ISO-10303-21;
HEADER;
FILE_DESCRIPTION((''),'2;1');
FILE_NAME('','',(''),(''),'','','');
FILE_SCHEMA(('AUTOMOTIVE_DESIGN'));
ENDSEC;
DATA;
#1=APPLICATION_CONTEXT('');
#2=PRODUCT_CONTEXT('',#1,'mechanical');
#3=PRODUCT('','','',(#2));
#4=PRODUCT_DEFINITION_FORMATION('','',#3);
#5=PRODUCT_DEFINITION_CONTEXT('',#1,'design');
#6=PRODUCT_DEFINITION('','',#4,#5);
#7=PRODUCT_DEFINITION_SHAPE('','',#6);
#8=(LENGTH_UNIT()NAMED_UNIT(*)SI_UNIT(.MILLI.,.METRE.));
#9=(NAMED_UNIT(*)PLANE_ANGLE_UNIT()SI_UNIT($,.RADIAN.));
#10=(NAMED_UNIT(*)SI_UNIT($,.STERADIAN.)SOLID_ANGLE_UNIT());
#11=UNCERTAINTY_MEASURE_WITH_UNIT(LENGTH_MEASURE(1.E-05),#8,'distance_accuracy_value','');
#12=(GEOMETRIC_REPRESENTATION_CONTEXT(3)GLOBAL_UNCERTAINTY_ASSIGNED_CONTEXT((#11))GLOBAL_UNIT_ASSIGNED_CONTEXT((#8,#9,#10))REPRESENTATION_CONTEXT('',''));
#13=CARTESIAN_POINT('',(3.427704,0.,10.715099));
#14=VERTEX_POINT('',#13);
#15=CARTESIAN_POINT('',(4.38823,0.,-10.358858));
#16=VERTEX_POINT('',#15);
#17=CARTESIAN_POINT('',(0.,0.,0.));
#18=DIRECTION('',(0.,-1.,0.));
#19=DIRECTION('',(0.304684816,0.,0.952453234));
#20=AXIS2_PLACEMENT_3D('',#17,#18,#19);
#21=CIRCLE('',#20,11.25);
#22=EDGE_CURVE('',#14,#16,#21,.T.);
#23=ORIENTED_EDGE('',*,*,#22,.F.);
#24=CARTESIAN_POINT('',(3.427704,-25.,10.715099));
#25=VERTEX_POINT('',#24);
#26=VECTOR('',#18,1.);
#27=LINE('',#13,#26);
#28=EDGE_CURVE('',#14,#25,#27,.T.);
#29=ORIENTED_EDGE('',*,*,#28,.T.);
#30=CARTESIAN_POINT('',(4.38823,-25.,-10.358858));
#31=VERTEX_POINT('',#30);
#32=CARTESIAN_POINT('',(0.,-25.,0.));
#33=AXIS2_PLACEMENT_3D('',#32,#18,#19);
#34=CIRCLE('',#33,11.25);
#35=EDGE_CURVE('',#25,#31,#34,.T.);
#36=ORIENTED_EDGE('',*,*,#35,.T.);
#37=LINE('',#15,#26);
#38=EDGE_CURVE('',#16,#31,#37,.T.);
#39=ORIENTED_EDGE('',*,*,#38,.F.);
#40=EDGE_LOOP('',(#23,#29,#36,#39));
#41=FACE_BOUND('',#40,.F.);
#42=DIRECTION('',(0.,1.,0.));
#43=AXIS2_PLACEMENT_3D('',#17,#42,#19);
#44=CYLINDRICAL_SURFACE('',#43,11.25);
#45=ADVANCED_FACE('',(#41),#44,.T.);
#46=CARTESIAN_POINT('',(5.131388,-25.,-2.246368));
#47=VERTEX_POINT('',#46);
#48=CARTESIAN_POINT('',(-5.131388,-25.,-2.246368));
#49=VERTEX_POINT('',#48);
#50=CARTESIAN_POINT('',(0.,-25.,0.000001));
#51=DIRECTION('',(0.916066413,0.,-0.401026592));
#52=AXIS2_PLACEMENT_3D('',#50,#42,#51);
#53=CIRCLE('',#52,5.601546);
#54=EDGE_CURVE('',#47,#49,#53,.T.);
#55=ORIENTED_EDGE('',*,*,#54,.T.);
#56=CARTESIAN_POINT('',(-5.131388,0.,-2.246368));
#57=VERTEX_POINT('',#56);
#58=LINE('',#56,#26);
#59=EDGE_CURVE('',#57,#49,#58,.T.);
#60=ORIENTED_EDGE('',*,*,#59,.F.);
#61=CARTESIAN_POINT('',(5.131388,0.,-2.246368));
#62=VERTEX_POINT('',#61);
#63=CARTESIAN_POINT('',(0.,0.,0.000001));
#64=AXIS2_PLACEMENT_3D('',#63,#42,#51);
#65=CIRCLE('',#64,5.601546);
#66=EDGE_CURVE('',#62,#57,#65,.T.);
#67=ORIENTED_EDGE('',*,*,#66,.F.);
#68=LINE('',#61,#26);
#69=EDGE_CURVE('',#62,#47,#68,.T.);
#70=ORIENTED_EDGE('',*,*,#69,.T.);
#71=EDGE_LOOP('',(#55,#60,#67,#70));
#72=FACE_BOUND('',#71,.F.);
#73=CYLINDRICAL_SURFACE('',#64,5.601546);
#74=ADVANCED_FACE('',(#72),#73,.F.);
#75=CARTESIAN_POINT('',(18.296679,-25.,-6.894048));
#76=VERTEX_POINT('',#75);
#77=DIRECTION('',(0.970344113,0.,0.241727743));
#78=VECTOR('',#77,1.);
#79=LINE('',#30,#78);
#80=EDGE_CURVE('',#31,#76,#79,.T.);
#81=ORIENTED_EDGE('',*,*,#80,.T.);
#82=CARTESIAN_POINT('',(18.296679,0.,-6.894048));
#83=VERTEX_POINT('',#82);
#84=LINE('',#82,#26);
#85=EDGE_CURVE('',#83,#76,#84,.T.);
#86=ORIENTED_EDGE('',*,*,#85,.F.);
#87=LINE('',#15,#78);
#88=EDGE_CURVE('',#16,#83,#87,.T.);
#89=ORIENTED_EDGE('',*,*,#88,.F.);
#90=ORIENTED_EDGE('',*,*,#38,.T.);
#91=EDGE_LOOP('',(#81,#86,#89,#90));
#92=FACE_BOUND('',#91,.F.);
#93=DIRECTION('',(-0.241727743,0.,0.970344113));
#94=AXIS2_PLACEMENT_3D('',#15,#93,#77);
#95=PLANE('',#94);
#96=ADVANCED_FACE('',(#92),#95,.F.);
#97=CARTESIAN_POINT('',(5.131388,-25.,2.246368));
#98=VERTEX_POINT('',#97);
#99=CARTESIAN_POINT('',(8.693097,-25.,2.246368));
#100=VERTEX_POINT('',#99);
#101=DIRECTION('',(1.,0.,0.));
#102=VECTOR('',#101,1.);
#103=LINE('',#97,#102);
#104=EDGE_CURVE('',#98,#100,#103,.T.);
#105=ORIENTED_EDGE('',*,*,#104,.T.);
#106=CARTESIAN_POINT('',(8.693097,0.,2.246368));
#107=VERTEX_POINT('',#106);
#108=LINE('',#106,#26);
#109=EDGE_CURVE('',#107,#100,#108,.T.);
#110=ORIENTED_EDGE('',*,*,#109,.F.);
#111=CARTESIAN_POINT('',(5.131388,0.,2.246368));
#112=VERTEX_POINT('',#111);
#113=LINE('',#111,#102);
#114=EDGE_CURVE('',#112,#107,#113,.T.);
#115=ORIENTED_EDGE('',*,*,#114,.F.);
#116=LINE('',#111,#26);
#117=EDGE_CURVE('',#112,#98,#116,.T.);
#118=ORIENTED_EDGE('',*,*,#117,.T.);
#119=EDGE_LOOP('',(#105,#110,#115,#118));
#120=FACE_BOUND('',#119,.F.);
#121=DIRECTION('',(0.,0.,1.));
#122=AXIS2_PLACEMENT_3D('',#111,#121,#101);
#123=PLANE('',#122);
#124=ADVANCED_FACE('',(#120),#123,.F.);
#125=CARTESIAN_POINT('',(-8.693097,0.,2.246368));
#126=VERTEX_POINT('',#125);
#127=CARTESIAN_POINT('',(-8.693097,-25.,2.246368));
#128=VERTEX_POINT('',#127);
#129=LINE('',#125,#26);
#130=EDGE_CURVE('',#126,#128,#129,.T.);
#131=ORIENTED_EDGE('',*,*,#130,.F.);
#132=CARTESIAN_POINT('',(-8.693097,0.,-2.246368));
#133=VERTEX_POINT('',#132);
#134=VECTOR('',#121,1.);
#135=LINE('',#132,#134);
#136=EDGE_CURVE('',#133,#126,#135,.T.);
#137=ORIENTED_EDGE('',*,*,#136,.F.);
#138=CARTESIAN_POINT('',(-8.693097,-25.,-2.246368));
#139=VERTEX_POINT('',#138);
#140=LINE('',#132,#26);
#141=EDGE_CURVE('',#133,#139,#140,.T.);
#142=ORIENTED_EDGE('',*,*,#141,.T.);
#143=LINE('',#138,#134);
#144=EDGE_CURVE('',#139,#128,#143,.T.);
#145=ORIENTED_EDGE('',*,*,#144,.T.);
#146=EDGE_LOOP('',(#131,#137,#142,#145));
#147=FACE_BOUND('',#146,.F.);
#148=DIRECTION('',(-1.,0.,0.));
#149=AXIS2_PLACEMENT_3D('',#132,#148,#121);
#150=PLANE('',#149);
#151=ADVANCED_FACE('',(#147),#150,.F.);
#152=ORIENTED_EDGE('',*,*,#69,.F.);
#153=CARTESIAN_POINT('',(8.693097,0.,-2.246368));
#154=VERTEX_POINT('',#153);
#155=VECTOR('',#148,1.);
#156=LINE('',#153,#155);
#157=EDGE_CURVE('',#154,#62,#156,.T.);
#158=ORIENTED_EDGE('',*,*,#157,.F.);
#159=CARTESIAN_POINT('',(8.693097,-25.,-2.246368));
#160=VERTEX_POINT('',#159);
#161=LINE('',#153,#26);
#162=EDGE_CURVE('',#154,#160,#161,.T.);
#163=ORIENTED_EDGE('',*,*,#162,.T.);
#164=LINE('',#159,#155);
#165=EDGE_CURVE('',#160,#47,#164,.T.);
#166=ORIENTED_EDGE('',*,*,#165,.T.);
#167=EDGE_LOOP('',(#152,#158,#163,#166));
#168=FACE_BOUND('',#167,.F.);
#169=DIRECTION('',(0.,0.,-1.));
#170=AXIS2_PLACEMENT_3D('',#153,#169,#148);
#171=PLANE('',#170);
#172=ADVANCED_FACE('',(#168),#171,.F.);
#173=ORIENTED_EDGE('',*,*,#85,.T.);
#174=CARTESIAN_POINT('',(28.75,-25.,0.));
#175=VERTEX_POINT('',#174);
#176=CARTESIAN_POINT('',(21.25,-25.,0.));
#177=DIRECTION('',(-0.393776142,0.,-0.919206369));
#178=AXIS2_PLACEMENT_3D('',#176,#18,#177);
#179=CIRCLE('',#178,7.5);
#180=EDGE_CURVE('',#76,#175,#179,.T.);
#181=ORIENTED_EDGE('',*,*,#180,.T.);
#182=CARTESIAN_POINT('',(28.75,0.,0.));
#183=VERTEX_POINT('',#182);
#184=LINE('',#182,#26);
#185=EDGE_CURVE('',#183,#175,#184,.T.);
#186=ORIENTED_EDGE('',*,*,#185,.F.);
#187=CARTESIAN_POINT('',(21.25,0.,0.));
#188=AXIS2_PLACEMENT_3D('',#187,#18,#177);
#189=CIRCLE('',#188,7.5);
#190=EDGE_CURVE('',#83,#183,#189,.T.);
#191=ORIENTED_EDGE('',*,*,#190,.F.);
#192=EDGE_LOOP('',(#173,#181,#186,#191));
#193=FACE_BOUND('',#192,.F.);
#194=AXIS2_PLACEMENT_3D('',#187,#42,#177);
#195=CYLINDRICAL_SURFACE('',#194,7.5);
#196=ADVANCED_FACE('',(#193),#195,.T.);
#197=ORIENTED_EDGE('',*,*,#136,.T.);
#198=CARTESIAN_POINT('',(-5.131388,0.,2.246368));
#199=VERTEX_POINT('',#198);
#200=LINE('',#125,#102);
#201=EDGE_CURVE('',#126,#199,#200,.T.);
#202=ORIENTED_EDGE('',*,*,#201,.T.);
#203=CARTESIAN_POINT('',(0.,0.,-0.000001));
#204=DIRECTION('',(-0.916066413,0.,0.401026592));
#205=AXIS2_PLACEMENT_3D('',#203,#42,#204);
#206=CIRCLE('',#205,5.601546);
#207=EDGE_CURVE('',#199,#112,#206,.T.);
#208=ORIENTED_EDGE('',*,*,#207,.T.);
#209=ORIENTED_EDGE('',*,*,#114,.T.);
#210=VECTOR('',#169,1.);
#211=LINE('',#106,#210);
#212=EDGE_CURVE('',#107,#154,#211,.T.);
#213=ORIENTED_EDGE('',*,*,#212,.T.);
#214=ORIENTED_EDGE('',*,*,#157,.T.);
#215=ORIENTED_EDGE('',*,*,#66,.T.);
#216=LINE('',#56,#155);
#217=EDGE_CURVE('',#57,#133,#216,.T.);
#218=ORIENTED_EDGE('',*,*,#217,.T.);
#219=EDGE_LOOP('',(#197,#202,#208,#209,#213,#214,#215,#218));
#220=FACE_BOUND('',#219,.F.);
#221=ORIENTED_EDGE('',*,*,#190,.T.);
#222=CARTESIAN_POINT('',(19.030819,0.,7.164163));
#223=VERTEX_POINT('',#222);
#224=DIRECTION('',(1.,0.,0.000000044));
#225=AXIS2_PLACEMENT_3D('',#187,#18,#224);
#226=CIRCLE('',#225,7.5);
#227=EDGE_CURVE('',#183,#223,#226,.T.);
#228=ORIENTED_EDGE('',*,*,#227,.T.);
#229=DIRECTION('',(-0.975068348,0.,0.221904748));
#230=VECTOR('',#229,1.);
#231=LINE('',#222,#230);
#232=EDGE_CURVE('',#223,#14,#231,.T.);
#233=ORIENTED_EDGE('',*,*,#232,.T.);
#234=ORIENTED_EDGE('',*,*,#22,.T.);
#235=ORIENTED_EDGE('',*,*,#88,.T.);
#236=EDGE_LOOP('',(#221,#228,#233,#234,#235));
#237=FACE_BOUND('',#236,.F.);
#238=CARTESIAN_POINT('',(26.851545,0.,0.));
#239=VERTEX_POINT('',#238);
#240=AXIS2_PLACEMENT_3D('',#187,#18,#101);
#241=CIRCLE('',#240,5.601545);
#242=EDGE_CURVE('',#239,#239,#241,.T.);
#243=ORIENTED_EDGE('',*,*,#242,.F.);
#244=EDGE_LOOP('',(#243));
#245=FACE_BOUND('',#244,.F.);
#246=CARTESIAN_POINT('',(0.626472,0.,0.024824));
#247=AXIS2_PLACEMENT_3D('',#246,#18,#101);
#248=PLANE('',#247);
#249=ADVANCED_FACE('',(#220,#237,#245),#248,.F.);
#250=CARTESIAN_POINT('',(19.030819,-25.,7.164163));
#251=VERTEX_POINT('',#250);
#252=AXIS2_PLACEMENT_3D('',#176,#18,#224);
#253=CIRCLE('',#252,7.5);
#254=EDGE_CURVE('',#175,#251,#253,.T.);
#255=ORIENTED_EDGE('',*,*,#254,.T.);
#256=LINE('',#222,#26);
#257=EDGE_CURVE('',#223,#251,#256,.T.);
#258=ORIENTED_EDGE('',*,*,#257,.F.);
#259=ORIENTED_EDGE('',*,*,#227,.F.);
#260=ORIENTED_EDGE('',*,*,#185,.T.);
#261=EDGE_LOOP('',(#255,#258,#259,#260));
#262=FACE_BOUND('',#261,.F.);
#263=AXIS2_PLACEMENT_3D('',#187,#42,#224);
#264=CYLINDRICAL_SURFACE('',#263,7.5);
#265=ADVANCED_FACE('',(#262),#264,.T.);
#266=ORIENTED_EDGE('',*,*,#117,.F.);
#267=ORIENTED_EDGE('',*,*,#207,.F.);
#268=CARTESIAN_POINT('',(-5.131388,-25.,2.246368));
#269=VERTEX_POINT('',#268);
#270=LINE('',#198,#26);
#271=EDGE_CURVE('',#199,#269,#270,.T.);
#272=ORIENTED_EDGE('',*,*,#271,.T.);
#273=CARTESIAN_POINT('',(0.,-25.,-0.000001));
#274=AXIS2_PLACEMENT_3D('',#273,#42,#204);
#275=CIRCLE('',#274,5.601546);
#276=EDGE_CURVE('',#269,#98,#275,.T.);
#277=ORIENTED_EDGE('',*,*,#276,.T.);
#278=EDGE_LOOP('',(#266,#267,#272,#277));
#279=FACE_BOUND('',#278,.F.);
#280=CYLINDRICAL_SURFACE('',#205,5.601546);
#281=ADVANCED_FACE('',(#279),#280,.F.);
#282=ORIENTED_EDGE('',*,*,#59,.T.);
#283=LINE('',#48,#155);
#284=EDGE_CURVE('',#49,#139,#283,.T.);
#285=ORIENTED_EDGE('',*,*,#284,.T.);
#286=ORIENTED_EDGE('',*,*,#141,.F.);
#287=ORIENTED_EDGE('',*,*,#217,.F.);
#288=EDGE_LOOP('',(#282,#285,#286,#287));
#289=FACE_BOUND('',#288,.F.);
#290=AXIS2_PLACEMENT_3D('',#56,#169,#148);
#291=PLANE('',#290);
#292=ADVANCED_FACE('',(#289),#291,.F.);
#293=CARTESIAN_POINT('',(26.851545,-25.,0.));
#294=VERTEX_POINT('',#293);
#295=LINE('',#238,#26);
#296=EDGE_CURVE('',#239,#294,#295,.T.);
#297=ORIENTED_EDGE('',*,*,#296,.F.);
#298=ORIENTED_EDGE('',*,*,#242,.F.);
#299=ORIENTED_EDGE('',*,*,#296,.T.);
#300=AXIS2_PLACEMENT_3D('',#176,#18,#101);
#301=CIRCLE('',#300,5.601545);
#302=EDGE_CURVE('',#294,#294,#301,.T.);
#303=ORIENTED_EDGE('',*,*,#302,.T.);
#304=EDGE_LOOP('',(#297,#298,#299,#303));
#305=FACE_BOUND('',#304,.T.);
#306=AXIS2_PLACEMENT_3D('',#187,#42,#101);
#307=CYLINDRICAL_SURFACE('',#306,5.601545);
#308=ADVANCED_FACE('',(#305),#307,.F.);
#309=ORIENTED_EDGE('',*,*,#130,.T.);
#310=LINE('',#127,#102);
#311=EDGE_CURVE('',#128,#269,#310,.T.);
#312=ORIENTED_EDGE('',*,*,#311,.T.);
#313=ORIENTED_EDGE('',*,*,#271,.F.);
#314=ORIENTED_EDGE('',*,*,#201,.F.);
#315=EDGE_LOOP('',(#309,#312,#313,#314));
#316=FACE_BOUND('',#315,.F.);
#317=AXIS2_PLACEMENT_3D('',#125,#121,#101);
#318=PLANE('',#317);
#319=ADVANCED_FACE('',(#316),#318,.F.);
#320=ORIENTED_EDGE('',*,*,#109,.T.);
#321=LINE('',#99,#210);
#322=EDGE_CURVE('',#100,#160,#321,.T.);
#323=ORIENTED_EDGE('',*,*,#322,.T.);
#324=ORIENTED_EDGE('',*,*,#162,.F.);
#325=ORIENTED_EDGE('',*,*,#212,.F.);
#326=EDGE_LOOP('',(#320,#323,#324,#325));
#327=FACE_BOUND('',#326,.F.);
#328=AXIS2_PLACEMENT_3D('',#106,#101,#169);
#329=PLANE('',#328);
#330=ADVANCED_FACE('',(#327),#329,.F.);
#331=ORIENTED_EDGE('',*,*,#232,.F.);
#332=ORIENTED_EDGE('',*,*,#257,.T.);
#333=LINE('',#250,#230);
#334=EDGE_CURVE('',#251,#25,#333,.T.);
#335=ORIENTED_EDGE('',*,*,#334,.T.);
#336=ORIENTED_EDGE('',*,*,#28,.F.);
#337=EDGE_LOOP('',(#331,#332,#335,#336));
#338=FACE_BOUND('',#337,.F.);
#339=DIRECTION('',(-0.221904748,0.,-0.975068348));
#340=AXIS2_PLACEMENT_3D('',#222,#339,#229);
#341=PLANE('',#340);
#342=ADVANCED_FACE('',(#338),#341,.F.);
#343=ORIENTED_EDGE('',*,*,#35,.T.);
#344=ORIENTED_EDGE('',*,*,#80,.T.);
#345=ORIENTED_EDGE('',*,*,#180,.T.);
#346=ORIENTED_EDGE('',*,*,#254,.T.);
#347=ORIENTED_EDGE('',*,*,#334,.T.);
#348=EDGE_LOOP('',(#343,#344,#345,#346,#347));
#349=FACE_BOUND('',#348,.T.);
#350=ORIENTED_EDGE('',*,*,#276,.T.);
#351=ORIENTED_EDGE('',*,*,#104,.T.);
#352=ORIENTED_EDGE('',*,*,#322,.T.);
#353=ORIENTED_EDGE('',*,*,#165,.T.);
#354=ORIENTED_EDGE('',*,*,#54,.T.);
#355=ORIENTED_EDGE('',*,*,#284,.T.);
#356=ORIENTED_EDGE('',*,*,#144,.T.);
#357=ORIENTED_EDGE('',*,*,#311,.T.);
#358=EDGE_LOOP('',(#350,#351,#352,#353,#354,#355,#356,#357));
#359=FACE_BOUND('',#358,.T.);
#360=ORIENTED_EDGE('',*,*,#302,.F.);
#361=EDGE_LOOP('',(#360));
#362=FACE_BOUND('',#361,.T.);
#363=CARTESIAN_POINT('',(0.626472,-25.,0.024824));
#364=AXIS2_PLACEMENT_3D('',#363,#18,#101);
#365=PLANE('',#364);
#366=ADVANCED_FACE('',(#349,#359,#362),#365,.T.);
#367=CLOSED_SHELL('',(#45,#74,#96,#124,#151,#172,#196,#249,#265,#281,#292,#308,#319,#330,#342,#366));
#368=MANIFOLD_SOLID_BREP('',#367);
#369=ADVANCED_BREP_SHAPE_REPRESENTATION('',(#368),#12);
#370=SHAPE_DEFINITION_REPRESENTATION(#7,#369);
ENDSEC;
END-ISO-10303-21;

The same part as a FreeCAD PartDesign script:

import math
import FreeCAD as App
import Part
import Sketcher
from FreeCAD import Vector

doc = App.newDocument("Part")
params = doc.addObject("Spreadsheet::Sheet", "Params")
for row, (alias, value) in enumerate([
    ("sketch1_radius", "7.5 mm"),
    ("sketch1_radius2", "11.25 mm"),
    ("pad1_length", "25 mm"),
], start=1):
    params.set(f"A{row}", alias)
    params.set(f"B{row}", "=" + value)
    params.setAlias(f"B{row}", alias)

body = doc.addObject("PartDesign::Body", "Body")

sketch1 = doc.addObject("Sketcher::SketchObject", "Sketch")
body.addObject(sketch1)
sketch1.AttachmentSupport = (doc.XZ_Plane, [""])
sketch1.MapMode = "FlatFace"
sketch1.addGeometry(Part.ArcOfCircle(Part.Circle(Vector(0, 0, 0), Vector(0, 0, 1), 11.25), math.radians(72.260797), math.radians(292.958538)), False)
sketch1.addGeometry(Part.LineSegment(Vector(4.38823, -10.358858, 0), Vector(18.296679, -6.894048, 0)), False)
sketch1.addGeometry(Part.ArcOfCircle(Part.Circle(Vector(21.25, 0, 0), Vector(0, 0, 1), 7.5), math.radians(-113.189667), math.radians(0.000002)), False)
sketch1.addGeometry(Part.ArcOfCircle(Part.Circle(Vector(21.25, 0, 0), Vector(0, 0, 1), 7.5), math.radians(0.000003), math.radians(107.210961)), False)
sketch1.addGeometry(Part.LineSegment(Vector(19.030819, 7.164163, 0), Vector(3.427704, 10.715099, 0)), False)
sketch1.addGeometry(Part.LineSegment(Vector(-8.693097, 2.246368, 0), Vector(-5.131388, 2.246368, 0)), False)
sketch1.addGeometry(Part.ArcOfCircle(Part.Circle(Vector(0, -0.000001, 0), Vector(0, 0, 1), 5.601546), math.radians(23.642371), math.radians(156.357629)), False)
sketch1.addGeometry(Part.LineSegment(Vector(5.131388, 2.246368, 0), Vector(8.693097, 2.246368, 0)), False)
sketch1.addGeometry(Part.LineSegment(Vector(8.693097, 2.246368, 0), Vector(8.693097, -2.246368, 0)), False)
sketch1.addGeometry(Part.LineSegment(Vector(8.693097, -2.246368, 0), Vector(5.131388, -2.246368, 0)), False)
sketch1.addGeometry(Part.ArcOfCircle(Part.Circle(Vector(0, 0.000001, 0), Vector(0, 0, 1), 5.601546), math.radians(-156.357629), math.radians(-23.642371)), False)
sketch1.addGeometry(Part.LineSegment(Vector(-5.131388, -2.246368, 0), Vector(-8.693097, -2.246368, 0)), False)
sketch1.addGeometry(Part.LineSegment(Vector(-8.693097, -2.246368, 0), Vector(-8.693097, 2.246368, 0)), False)
sketch1.addGeometry(Part.Circle(Vector(21.25, 0, 0), Vector(0, 0, 1), 5.601545), False)
sketch1.addConstraint(Sketcher.Constraint("Coincident", 0, 2, 1, 1))
sketch1.addConstraint(Sketcher.Constraint("Coincident", 1, 2, 2, 1))
sketch1.addConstraint(Sketcher.Constraint("Tangent", 2, 2, 3, 1))
sketch1.addConstraint(Sketcher.Constraint("Coincident", 3, 2, 4, 1))
sketch1.addConstraint(Sketcher.Constraint("Coincident", 4, 2, 0, 1))
sketch1.addConstraint(Sketcher.Constraint("Coincident", 5, 2, 6, 2))
sketch1.addConstraint(Sketcher.Constraint("Coincident", 6, 1, 7, 1))
sketch1.addConstraint(Sketcher.Constraint("Coincident", 7, 2, 8, 1))
sketch1.addConstraint(Sketcher.Constraint("Coincident", 8, 2, 9, 1))
sketch1.addConstraint(Sketcher.Constraint("Coincident", 9, 2, 10, 2))
sketch1.addConstraint(Sketcher.Constraint("Coincident", 10, 1, 11, 1))
sketch1.addConstraint(Sketcher.Constraint("Coincident", 11, 2, 12, 1))
sketch1.addConstraint(Sketcher.Constraint("Coincident", 12, 2, 5, 1))
sketch1.addConstraint(Sketcher.Constraint("Horizontal", 5))
sketch1.addConstraint(Sketcher.Constraint("Horizontal", 7))
sketch1.addConstraint(Sketcher.Constraint("Vertical", 8))
sketch1.addConstraint(Sketcher.Constraint("Horizontal", 9))
sketch1.addConstraint(Sketcher.Constraint("Horizontal", 11))
sketch1.addConstraint(Sketcher.Constraint("Vertical", 12))
sketch1.addConstraint(Sketcher.Constraint("Coincident", 0, 3, -1, 1))
sketch1.addConstraint(Sketcher.Constraint("Coincident", 6, 3, -1, 1))
sketch1.addConstraint(Sketcher.Constraint("Coincident", 10, 3, -1, 1))
sketch1.addConstraint(Sketcher.Constraint("Coincident", 13, 3, 2, 3))
sketch1.addConstraint(Sketcher.Constraint("Equal", 2, 3))
sketch1.addConstraint(Sketcher.Constraint("Equal", 6, 10))
sketch1.addConstraint(Sketcher.Constraint("Equal", 10, 13))
sketch1.addConstraint(Sketcher.Constraint("Symmetric", 7, 2, 11, 2, -1, 1))
sketch1.addConstraint(Sketcher.Constraint("PointOnObject", 2, 3, -1))
sketch1.addConstraint(Sketcher.Constraint("PointOnObject", 2, 2, -1))
sketch1.addConstraint(Sketcher.Constraint("Horizontal", 5, 2, 6, 1))
sketch1.addConstraint(Sketcher.Constraint("Horizontal", 9, 2, 10, 1))
sketch1.addConstraint(Sketcher.Constraint("Radius", 2, 7.5))
sketch1.addConstraint(Sketcher.Constraint("Radius", 0, 11.25))
sketch1.addConstraint(Sketcher.Constraint("Diameter", 13, 11.20309))
sketch1.addConstraint(Sketcher.Constraint("DistanceX", -1, 1, 2, 3, 21.25))
sketch1.addConstraint(Sketcher.Constraint("DistanceX", 5, 1, 5, 2, 3.561709))
sketch1.addConstraint(Sketcher.Constraint("DistanceY", -1, 1, 4, 2, 10.715099))
sketch1.addConstraint(Sketcher.Constraint("DistanceY", 8, 2, 8, 1, 4.492736))
sketch1.addConstraint(Sketcher.Constraint("DistanceX", -1, 1, 0, 2, 4.38823))
sketch1.addConstraint(Sketcher.Constraint("DistanceX", -1, 1, 1, 2, 18.296679))
sketch1.addConstraint(Sketcher.Constraint("DistanceX", -1, 1, 3, 2, 19.030819))
sketch1.setExpression("Constraints[31]", "Params.sketch1_radius")
sketch1.setExpression("Constraints[32]", "Params.sketch1_radius2")
pad1 = doc.addObject("PartDesign::Pad", "Pad")
body.addObject(pad1)
pad1.Profile = sketch1
pad1.setExpression("Length", "Params.pad1_length")

doc.recompute()
